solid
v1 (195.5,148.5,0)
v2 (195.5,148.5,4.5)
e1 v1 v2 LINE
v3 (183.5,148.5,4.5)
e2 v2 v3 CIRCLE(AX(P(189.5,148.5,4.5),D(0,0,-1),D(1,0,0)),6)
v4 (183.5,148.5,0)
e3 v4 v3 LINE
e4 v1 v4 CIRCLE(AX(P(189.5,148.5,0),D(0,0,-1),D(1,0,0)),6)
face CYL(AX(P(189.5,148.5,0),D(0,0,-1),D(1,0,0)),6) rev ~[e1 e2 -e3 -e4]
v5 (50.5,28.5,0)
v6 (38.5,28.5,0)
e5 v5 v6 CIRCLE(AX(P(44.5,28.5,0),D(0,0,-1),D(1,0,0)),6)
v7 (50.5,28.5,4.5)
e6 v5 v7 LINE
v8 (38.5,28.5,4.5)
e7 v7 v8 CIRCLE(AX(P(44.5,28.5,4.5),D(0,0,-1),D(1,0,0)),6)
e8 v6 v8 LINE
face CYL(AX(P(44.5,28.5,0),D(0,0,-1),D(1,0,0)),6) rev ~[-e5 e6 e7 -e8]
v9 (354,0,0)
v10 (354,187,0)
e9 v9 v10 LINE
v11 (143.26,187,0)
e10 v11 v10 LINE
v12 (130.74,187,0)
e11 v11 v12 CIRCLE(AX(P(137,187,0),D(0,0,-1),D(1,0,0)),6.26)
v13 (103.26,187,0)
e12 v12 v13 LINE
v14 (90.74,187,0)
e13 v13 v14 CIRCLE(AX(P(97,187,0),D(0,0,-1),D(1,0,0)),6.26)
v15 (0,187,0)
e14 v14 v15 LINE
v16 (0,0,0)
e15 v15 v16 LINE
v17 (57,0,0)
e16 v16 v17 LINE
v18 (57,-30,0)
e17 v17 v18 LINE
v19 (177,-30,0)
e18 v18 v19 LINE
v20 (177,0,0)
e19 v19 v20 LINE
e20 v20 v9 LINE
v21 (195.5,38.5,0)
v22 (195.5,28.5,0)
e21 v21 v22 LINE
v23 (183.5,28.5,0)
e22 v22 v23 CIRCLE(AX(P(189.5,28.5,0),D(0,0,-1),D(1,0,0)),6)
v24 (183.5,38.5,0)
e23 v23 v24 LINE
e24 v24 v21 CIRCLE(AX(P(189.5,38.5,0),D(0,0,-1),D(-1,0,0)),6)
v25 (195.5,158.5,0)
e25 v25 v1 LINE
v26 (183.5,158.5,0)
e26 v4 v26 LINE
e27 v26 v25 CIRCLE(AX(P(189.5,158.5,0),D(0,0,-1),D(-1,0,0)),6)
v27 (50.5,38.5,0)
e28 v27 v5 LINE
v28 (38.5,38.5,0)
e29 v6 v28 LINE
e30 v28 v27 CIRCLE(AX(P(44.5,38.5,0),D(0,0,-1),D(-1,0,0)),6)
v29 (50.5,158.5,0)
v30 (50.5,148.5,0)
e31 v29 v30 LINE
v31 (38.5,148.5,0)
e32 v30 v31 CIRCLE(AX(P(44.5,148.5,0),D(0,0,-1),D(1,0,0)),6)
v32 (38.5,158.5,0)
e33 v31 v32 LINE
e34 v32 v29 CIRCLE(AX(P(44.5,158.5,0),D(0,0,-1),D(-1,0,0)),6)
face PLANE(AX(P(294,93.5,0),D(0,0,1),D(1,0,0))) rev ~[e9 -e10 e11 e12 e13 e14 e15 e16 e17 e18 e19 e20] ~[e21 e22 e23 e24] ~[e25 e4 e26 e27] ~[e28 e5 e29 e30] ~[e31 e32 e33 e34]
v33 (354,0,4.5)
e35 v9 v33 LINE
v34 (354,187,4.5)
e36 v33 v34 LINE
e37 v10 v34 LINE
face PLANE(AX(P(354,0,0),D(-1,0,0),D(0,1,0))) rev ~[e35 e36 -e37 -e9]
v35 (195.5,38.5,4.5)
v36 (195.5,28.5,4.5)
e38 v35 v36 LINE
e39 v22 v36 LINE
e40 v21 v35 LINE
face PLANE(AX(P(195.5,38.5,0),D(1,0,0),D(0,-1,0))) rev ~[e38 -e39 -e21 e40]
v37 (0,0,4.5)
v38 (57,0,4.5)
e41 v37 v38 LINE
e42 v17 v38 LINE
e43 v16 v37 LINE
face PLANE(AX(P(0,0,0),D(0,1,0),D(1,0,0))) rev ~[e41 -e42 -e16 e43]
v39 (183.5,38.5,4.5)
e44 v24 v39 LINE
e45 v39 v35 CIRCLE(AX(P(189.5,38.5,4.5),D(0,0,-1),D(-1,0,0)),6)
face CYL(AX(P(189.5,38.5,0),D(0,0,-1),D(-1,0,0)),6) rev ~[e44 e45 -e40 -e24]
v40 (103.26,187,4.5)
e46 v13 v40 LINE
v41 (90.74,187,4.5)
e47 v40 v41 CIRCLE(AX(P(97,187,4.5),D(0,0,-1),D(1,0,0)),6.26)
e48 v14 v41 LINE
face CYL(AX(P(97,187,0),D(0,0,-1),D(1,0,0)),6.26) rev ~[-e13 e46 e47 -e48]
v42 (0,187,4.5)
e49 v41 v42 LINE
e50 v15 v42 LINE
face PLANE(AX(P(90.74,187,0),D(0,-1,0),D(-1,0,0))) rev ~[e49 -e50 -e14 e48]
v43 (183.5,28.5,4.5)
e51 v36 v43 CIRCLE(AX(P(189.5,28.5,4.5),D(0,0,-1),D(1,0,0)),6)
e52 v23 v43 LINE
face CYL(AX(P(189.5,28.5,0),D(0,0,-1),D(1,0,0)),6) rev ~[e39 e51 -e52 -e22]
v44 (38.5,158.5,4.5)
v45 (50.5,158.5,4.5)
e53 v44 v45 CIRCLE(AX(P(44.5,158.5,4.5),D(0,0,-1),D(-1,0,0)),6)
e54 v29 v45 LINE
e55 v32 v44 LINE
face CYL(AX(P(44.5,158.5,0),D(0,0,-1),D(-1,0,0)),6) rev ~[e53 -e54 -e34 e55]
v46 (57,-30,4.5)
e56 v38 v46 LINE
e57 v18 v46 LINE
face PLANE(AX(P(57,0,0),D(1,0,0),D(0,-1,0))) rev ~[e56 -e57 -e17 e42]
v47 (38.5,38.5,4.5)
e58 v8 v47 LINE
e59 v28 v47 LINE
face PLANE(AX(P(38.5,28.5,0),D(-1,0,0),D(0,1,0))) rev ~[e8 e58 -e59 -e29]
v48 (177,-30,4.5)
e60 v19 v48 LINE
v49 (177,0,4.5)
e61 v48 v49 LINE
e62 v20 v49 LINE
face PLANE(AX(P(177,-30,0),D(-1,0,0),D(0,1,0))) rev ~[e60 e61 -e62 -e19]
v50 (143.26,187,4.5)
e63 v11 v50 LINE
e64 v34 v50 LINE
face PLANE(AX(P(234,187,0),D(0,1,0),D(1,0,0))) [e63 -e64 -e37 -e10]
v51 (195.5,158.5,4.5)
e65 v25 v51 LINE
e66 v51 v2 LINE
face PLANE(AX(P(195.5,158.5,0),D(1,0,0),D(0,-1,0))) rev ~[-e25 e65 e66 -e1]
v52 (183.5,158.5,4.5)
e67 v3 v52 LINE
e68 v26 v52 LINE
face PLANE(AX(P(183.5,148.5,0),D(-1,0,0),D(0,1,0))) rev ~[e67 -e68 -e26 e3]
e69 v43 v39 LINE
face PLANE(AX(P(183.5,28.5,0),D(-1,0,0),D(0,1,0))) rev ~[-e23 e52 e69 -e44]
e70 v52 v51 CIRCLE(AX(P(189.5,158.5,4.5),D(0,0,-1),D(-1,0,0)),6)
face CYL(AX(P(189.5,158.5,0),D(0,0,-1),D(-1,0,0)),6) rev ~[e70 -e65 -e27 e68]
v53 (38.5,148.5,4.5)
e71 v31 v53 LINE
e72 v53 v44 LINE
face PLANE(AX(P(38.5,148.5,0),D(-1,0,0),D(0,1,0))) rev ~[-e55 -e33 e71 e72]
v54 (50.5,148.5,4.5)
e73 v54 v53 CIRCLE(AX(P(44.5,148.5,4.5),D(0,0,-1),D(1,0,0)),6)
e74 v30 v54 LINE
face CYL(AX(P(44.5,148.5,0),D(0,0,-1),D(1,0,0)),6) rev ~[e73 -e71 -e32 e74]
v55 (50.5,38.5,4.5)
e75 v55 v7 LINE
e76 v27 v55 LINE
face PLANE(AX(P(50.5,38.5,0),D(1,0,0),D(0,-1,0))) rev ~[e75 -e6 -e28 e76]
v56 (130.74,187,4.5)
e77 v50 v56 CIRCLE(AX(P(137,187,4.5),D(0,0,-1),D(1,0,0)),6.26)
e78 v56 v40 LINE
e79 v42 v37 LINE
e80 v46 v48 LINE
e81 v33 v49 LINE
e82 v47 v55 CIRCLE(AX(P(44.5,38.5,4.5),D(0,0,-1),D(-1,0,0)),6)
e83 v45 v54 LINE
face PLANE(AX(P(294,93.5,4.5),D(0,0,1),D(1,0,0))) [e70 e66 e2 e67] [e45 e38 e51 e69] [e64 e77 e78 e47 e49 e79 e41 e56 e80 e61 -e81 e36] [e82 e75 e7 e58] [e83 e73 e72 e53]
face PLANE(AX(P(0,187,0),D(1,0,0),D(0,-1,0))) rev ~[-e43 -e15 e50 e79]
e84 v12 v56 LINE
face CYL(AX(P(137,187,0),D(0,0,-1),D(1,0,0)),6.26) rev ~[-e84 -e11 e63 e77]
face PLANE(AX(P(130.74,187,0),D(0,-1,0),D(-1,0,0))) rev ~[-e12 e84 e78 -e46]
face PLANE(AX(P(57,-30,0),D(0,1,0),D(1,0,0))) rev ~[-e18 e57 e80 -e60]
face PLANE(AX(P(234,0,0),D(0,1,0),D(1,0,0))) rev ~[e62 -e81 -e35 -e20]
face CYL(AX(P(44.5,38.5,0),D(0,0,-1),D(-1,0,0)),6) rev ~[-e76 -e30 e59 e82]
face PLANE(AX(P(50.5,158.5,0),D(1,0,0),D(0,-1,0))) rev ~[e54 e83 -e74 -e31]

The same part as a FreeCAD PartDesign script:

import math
import FreeCAD as App
import Part
import Sketcher

V = App.Vector


def add_polygon(sketch, points):
    """Adds a closed chain of lines whose ends are joined by coincident constraints."""
    first, n = sketch.GeometryCount, len(points)
    for a, b in zip(points, points[1:] + points[:1]):
        sketch.addGeometry(Part.LineSegment(App.Vector(*a, 0), App.Vector(*b, 0)), False)
    for i in range(n):
        sketch.addConstraint(Sketcher.Constraint("Coincident", first + i, 2, first + (i + 1) % n, 1))

doc = App.newDocument("Part")
body = doc.addObject("PartDesign::Body", "Body")

sketch1 = body.newObject("Sketcher::SketchObject", "Sketch")
sketch1.AttachmentSupport = (doc.getObject("XY_Plane"), [""])
sketch1.MapMode = "FlatFace"
sketch1.addGeometry([
    Part.LineSegment(V(0, 187, 0), V(0, 0, 0)),
    Part.LineSegment(V(0, 0, 0), V(57, 0, 0)),
    Part.LineSegment(V(57, 0, 0), V(57, -30, 0)),
    Part.LineSegment(V(57, -30, 0), V(177, -30, 0)),
    Part.LineSegment(V(177, -30, 0), V(177, 0, 0)),
    Part.LineSegment(V(177, 0, 0), V(234, 0, 0)),
    Part.LineSegment(V(234, 0, 0), V(234, 187, 0)),
    Part.LineSegment(V(234, 187, 0), V(143, 187, 0)),
    Part.ArcOfCircle(Part.Circle(V(137, 187, 0), V(0, 0, 1), 6), math.radians(180), math.radians(360)),
    Part.LineSegment(V(131, 187, 0), V(103, 187, 0)),
    Part.ArcOfCircle(Part.Circle(V(97, 187, 0), V(0, 0, 1), 6), math.radians(180), math.radians(360)),
    Part.LineSegment(V(91, 187, 0), V(0, 187, 0)),
    Part.LineSegment(V(50, 38, 0), V(50, 28, 0)),
    Part.ArcOfCircle(Part.Circle(V(44, 28, 0), V(0, 0, 1), 6), math.radians(180), math.radians(360)),
    Part.LineSegment(V(38, 28, 0), V(38, 38, 0)),
    Part.ArcOfCircle(Part.Circle(V(44, 38, 0), V(0, 0, 1), 6), math.radians(0), math.radians(180)),
    Part.LineSegment(V(196, 38, 0), V(196, 28, 0)),
    Part.ArcOfCircle(Part.Circle(V(190, 28, 0), V(0, 0, 1), 6), math.radians(180), math.radians(360)),
    Part.LineSegment(V(184, 28, 0), V(184, 38, 0)),
    Part.ArcOfCircle(Part.Circle(V(190, 38, 0), V(0, 0, 1), 6), math.radians(0), math.radians(180)),
    Part.LineSegment(V(50, 158, 0), V(50, 148, 0)),
    Part.ArcOfCircle(Part.Circle(V(44, 148, 0), V(0, 0, 1), 6), math.radians(180), math.radians(360)),
    Part.LineSegment(V(38, 148, 0), V(38, 158, 0)),
    Part.ArcOfCircle(Part.Circle(V(44, 158, 0), V(0, 0, 1), 6), math.radians(0), math.radians(180)),
    Part.LineSegment(V(196, 158, 0), V(196, 148, 0)),
    Part.ArcOfCircle(Part.Circle(V(190, 148, 0), V(0, 0, 1), 6), math.radians(180), math.radians(360)),
    Part.LineSegment(V(184, 148, 0), V(184, 158, 0)),
    Part.ArcOfCircle(Part.Circle(V(190, 158, 0), V(0, 0, 1), 6), math.radians(0), math.radians(180)),
], False)
sketch1.addConstraint([
    Sketcher.Constraint("Coincident", 0, 2, 1, 1),
    Sketcher.Constraint("Coincident", 1, 2, 2, 1),
    Sketcher.Constraint("Coincident", 2, 2, 3, 1),
    Sketcher.Constraint("Coincident", 3, 2, 4, 1),
    Sketcher.Constraint("Coincident", 4, 2, 5, 1),
    Sketcher.Constraint("Coincident", 5, 2, 6, 1),
    Sketcher.Constraint("Coincident", 6, 2, 7, 1),
    Sketcher.Constraint("Coincident", 7, 2, 8, 2),
    Sketcher.Constraint("Coincident", 8, 1, 9, 1),
    Sketcher.Constraint("Coincident", 9, 2, 10, 2),
    Sketcher.Constraint("Coincident", 10, 1, 11, 1),
    Sketcher.Constraint("Coincident", 11, 2, 0, 1),
    Sketcher.Constraint("Tangent", 12, 2, 13, 2),
    Sketcher.Constraint("Tangent", 13, 1, 14, 1),
    Sketcher.Constraint("Tangent", 14, 2, 15, 2),
    Sketcher.Constraint("Tangent", 15, 1, 12, 1),
    Sketcher.Constraint("Tangent", 16, 2, 17, 2),
    Sketcher.Constraint("Tangent", 17, 1, 18, 1),
    Sketcher.Constraint("Tangent", 18, 2, 19, 2),
    Sketcher.Constraint("Tangent", 19, 1, 16, 1),
    Sketcher.Constraint("Tangent", 20, 2, 21, 2),
    Sketcher.Constraint("Tangent", 21, 1, 22, 1),
    Sketcher.Constraint("Tangent", 22, 2, 23, 2),
    Sketcher.Constraint("Tangent", 23, 1, 20, 1),
    Sketcher.Constraint("Tangent", 24, 2, 25, 2),
    Sketcher.Constraint("Tangent", 25, 1, 26, 1),
    Sketcher.Constraint("Tangent", 26, 2, 27, 2),
    Sketcher.Constraint("Tangent", 27, 1, 24, 1),
    Sketcher.Constraint("Vertical", 0),
    Sketcher.Constraint("Horizontal", 1),
    Sketcher.Constraint("Vertical", 2),
    Sketcher.Constraint("Horizontal", 3),
    Sketcher.Constraint("Vertical", 4),
    Sketcher.Constraint("Horizontal", 5),
    Sketcher.Constraint("Vertical", 6),
    Sketcher.Constraint("Horizontal", 7),
    Sketcher.Constraint("Horizontal", 9),
    Sketcher.Constraint("Horizontal", 11),
    Sketcher.Constraint("Vertical", 12),
    Sketcher.Constraint("Vertical", 14),
    Sketcher.Constraint("Vertical", 16),
    Sketcher.Constraint("Vertical", 18),
    Sketcher.Constraint("Vertical", 20),
    Sketcher.Constraint("Vertical", 22),
    Sketcher.Constraint("Vertical", 24),
    Sketcher.Constraint("Vertical", 26),
    Sketcher.Constraint("Coincident", 0, 2, -1, 1),
    Sketcher.Constraint("Equal", 8, 10),
    Sketcher.Constraint("Equal", 15, 17),
    Sketcher.Constraint("Equal", 19, 21),
    Sketcher.Constraint("Equal", 23, 25),
    Sketcher.Constraint("PointOnObject", 4, 2, -1),
    Sketcher.Constraint("Horizontal", 8, 3, 10, 3),
    Sketcher.Constraint("Horizontal", 13, 3, 17, 3),
    Sketcher.Constraint("Horizontal", 15, 3, 19, 3),
    Sketcher.Constraint("Horizontal", 21, 3, 25, 3),
    Sketcher.Constraint("Horizontal", 23, 3, 27, 3),
    Sketcher.Constraint("Horizontal", 10, 3, 6, 2),
    Sketcher.Constraint("Horizontal", 7, 2, 8, 1),
    Sketcher.Constraint("Horizontal", 9, 2, 10, 1),
    Sketcher.Constraint("Vertical", 15, 3, 21, 3),
    Sketcher.Constraint("Vertical", 19, 3, 25, 3),
    Sketcher.Constraint("Equal", 1, 5),
    Sketcher.Constraint("Equal", 7, 11),
    Sketcher.Constraint("Equal", 18, 20),
    Sketcher.Constraint("Radius", 13, 6.0),
    Sketcher.Constraint("DistanceX", 1, 1, 1, 2, 57.0),
    Sketcher.Constraint("DistanceX", 3, 1, 3, 2, 120.0),
    Sketcher.Constraint("DistanceY", 0, 2, 0, 1, 187.0),
    Sketcher.Constraint("DistanceY", 2, 2, 2, 1, 30.0),
    Sketcher.Constraint("DistanceY", 12, 2, 12, 1, 10.0),
    Sketcher.Constraint("Radius", 8, 6.26),
    Sketcher.Constraint("DistanceX", -1, 1, 8, 3, 137.0),
    Sketcher.Constraint("DistanceX", 13, 3, 17, 3, 145.0),
    Sketcher.Constraint("DistanceY", 15, 3, 21, 3, 110.0),
    Sketcher.Constraint("DistanceX", -1, 1, 13, 3, 44.5),
    Sketcher.Constraint("DistanceY", -1, 1, 13, 3, 28.5),
])
pad1 = body.newObject("PartDesign::Pad", "Pad")
pad1.Profile = sketch1
pad1.Length = 4.5

sketch2 = body.newObject("Sketcher::SketchObject", "Sketch001")
sketch2.AttachmentSupport = (doc.getObject("XY_Plane"), [""])
sketch2.MapMode = "FlatFace"
add_polygon(sketch2, [(234, 187), (234, 0), (354, 0), (354, 187)])
sketch2.addConstraint([
    Sketcher.Constraint("Vertical", 0),
    Sketcher.Constraint("Horizontal", 1),
    Sketcher.Constraint("Vertical", 2),
    Sketcher.Constraint("Horizontal", 3),
    Sketcher.Constraint("PointOnObject", 0, 2, -1),
    Sketcher.Constraint("DistanceX", 1, 1, 1, 2, 120.0),
    Sketcher.Constraint("DistanceY", 0, 2, 0, 1, 187.0),
    Sketcher.Constraint("DistanceX", -1, 1, 0, 2, 234.0),
])
pad2 = body.newObject("PartDesign::Pad", "Pad001")
pad2.Profile = sketch2
pad2.Length = 4.5

doc.recompute()
